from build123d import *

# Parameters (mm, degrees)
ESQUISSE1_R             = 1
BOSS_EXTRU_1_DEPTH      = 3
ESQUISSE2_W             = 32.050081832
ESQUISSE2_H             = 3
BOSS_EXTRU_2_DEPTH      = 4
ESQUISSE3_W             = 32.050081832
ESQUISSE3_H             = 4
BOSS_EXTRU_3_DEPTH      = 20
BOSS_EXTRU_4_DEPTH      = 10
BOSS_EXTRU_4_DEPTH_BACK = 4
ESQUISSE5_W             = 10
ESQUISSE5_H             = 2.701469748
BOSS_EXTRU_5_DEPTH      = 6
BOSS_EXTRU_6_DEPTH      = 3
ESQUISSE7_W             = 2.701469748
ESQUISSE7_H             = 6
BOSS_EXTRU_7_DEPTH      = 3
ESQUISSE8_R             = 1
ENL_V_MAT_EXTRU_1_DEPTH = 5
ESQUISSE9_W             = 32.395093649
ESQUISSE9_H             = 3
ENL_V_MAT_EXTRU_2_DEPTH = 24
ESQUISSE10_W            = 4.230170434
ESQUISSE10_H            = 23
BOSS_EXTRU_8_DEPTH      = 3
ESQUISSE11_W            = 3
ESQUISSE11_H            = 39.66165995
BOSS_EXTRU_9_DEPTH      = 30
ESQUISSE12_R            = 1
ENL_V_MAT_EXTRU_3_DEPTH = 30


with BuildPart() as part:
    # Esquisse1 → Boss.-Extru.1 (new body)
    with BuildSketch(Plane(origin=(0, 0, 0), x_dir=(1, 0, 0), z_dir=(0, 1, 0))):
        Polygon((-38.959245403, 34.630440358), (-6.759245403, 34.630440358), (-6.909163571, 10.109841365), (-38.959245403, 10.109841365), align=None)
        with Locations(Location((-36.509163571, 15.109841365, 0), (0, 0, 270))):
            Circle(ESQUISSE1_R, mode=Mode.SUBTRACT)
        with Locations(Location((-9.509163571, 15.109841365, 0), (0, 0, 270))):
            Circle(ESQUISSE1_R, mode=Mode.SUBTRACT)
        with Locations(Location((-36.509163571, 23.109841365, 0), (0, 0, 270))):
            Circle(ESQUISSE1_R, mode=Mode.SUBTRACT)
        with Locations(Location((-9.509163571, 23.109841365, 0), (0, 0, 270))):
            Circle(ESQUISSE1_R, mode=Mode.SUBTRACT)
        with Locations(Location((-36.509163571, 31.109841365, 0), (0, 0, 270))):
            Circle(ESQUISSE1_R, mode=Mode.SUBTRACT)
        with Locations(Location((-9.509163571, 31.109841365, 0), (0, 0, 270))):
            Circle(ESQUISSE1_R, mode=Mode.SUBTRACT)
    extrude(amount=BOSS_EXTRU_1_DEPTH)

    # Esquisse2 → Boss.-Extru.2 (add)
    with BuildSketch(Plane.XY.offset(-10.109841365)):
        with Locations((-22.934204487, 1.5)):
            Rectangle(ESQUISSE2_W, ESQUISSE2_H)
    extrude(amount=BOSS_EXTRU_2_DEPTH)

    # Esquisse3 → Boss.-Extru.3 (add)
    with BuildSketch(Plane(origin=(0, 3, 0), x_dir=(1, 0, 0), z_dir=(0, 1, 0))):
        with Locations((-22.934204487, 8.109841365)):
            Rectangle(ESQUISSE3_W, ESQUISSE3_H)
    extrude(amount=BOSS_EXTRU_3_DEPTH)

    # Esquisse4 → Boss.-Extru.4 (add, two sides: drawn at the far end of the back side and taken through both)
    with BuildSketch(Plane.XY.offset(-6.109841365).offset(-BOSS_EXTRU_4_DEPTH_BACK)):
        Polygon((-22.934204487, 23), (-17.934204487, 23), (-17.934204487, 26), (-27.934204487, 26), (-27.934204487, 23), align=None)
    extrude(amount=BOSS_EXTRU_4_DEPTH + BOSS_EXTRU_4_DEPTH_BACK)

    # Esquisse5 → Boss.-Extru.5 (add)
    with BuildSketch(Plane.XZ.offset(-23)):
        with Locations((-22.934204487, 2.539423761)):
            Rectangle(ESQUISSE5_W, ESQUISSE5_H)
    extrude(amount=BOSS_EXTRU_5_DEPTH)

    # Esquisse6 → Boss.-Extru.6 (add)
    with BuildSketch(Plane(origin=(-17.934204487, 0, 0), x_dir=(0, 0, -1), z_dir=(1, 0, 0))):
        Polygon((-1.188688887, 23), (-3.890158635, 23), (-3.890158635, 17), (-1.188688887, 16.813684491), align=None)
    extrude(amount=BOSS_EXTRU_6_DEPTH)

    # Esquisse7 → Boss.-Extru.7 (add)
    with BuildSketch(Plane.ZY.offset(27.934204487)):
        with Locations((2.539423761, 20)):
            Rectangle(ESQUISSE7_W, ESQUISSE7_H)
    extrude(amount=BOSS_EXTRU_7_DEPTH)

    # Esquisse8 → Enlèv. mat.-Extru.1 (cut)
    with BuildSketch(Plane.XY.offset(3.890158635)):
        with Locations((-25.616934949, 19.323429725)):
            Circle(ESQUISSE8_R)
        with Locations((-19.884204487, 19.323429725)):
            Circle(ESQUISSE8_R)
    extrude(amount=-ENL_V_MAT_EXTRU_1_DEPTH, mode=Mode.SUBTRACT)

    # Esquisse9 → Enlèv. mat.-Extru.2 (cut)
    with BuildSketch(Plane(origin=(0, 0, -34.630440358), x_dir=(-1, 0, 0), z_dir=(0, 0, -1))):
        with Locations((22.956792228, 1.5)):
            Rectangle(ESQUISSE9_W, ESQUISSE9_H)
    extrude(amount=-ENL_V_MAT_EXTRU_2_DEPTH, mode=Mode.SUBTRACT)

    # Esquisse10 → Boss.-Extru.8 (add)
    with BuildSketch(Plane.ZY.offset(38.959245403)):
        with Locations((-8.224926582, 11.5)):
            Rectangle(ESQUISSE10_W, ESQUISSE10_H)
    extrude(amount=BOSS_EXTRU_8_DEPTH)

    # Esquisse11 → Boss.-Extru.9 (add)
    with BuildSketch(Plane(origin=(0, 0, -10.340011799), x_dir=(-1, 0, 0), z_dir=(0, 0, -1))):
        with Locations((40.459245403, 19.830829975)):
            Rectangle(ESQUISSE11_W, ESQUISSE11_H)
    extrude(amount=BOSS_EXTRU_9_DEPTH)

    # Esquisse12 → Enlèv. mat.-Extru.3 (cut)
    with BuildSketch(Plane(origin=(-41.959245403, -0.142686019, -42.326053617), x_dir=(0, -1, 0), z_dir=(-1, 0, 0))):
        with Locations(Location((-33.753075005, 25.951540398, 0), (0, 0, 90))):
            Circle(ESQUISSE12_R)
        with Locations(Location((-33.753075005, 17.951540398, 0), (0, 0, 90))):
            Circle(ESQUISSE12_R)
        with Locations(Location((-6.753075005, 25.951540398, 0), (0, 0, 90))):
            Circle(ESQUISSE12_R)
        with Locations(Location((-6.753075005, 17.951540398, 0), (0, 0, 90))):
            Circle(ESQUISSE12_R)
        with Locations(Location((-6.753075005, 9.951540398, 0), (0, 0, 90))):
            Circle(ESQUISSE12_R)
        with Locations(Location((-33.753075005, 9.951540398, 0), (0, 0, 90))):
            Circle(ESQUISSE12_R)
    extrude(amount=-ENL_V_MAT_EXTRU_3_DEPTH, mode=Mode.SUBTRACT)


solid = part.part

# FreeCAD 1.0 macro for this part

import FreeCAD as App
import Part
import Sketcher

V = App.Vector
Q = App.Units.Quantity

doc = App.newDocument("Part")
body = doc.addObject("PartDesign::Body", "Body")

# Sketch on XZ plane
sketch1 = body.newObject("Sketcher::SketchObject", "Sketch")
sketch1.AttachmentSupport = (doc.getObject("XZ_Plane"), [""])
sketch1.MapMode = "FlatFace"
sketch1.addGeometry(Part.LineSegment(V(-6.8, -34.6, 0), V(-39, -34.6, 0)), False)
sketch1.addGeometry(Part.LineSegment(V(-39, -34.6, 0), V(-39, -10.1, 0)), False)
sketch1.addGeometry(Part.LineSegment(V(-39, -10.1, 0), V(-6.9, -10.1, 0)), False)
sketch1.addGeometry(Part.LineSegment(V(-6.9, -10.1, 0), V(-6.8, -34.6, 0)), False)
sketch1.addGeometry(Part.Circle(V(-9.5, -15.1, 0), V(0, 0, 1), 1), False)
sketch1.addGeometry(Part.Circle(V(-36.5, -15.1, 0), V(0, 0, 1), 1), False)
sketch1.addGeometry(Part.Circle(V(-9.5, -23.1, 0), V(0, 0, 1), 1), False)
sketch1.addGeometry(Part.Circle(V(-9.5, -31.1, 0), V(0, 0, 1), 1), False)
sketch1.addGeometry(Part.Circle(V(-36.5, -23.1, 0), V(0, 0, 1), 1), False)
sketch1.addGeometry(Part.Circle(V(-36.5, -31.1, 0), V(0, 0, 1), 1), False)
sketch1.addConstraint(Sketcher.Constraint("Coincident", 0, 2, 1, 1))
sketch1.addConstraint(Sketcher.Constraint("Coincident", 1, 2, 2, 1))
sketch1.addConstraint(Sketcher.Constraint("Coincident", 2, 2, 3, 1))
sketch1.addConstraint(Sketcher.Constraint("Coincident", 3, 2, 0, 1))
sketch1.addConstraint(Sketcher.Constraint("Horizontal", 0))
sketch1.addConstraint(Sketcher.Constraint("Vertical", 1))
sketch1.addConstraint(Sketcher.Constraint("Horizontal", 2))
sketch1.addConstraint(Sketcher.Constraint("Equal", 4, 5))
sketch1.addConstraint(Sketcher.Constraint("Equal", 5, 6))
sketch1.addConstraint(Sketcher.Constraint("Equal", 6, 7))
sketch1.addConstraint(Sketcher.Constraint("Equal", 7, 8))
sketch1.addConstraint(Sketcher.Constraint("Equal", 8, 9))
sketch1.addConstraint(Sketcher.Constraint("Horizontal", 4, 3, 5, 3))
sketch1.addConstraint(Sketcher.Constraint("Horizontal", 6, 3, 8, 3))
sketch1.addConstraint(Sketcher.Constraint("Horizontal", 7, 3, 9, 3))
sketch1.addConstraint(Sketcher.Constraint("Vertical", 4, 3, 6, 3))
sketch1.addConstraint(Sketcher.Constraint("Vertical", 6, 3, 7, 3))
sketch1.addConstraint(Sketcher.Constraint("Vertical", 5, 3, 8, 3))
sketch1.addConstraint(Sketcher.Constraint("Vertical", 8, 3, 9, 3))
sketch1.addConstraint(Sketcher.Constraint("Diameter", 4, Q("2 mm")))
sketch1.addConstraint(Sketcher.Constraint("DistanceX", 0, 2, 0, 1, Q("32.2 mm")))
sketch1.addConstraint(Sketcher.Constraint("DistanceX", 5, 3, 4, 3, Q("27 mm")))
sketch1.addConstraint(Sketcher.Constraint("DistanceY", 6, 3, 4, 3, Q("8 mm")))
sketch1.addConstraint(Sketcher.Constraint("DistanceY", 7, 3, 6, 3, Q("8 mm")))
sketch1.addConstraint(Sketcher.Constraint("DistanceY", 5, 3, 1, 2, Q("5 mm")))
sketch1.addConstraint(Sketcher.Constraint("DistanceX", 4, 3, 2, 2, Q("2.6 mm")))
sketch1.addConstraint(Sketcher.Constraint("DistanceY", 1, 1, 1, 2, Q("24.520599 mm")))
sketch1.addConstraint(Sketcher.Constraint("DistanceX", 2, 1, 2, 2, Q("32.050082 mm")))
sketch1.addConstraint(Sketcher.Constraint("DistanceY", 4, 3, -1, 1, Q("15.109841 mm")))
sketch1.addConstraint(Sketcher.Constraint("DistanceX", 4, 3, -1, 1, Q("9.509164 mm")))
pad1 = body.newObject("PartDesign::Pad", "Pad")
pad1.Profile = sketch1
pad1.Length = 3
pad1.Reversed = True

# Sketch on XY plane
sketch2 = body.newObject("Sketcher::SketchObject", "Sketch001")
sketch2.AttachmentSupport = (doc.getObject("XY_Plane"), [""])
sketch2.MapMode = "FlatFace"
sketch2.AttachmentOffset = App.Placement(V(0, 0, -10.109841), App.Rotation())
sketch2.addGeometry(Part.LineSegment(V(-39, 3, 0), V(-39, 0, 0)), False)
sketch2.addGeometry(Part.LineSegment(V(-39, 0, 0), V(-6.9, 0, 0)), False)
sketch2.addGeometry(Part.LineSegment(V(-6.9, 0, 0), V(-6.9, 3, 0)), False)
sketch2.addGeometry(Part.LineSegment(V(-6.9, 3, 0), V(-39, 3, 0)), False)
sketch2.addConstraint(Sketcher.Constraint("Coincident", 0, 2, 1, 1))
sketch2.addConstraint(Sketcher.Constraint("Coincident", 1, 2, 2, 1))
sketch2.addConstraint(Sketcher.Constraint("Coincident", 2, 2, 3, 1))
sketch2.addConstraint(Sketcher.Constraint("Coincident", 3, 2, 0, 1))
sketch2.addConstraint(Sketcher.Constraint("Vertical", 0))
sketch2.addConstraint(Sketcher.Constraint("Horizontal", 1))
sketch2.addConstraint(Sketcher.Constraint("Vertical", 2))
sketch2.addConstraint(Sketcher.Constraint("Horizontal", 3))
sketch2.addConstraint(Sketcher.Constraint("PointOnObject", 0, 2, -1))
sketch2.addConstraint(Sketcher.Constraint("DistanceY", 0, 2, 0, 1, Q("3 mm")))
sketch2.addConstraint(Sketcher.Constraint("DistanceX", 1, 1, 1, 2, Q("32.050082 mm")))
sketch2.addConstraint(Sketcher.Constraint("DistanceX", 0, 2, -1, 1, Q("38.959245 mm")))
pad2 = body.newObject("PartDesign::Pad", "Pad001")
pad2.Profile = sketch2
pad2.Length = 4

# Sketch on XZ plane
sketch3 = body.newObject("Sketcher::SketchObject", "Sketch002")
sketch3.AttachmentSupport = (doc.getObject("XZ_Plane"), [""])
sketch3.MapMode = "FlatFace"
sketch3.AttachmentOffset = App.Placement(V(0, 0, -3), App.Rotation())
sketch3.addGeometry(Part.LineSegment(V(-39, -10.1, 0), V(-39, -6.1, 0)), False)
sketch3.addGeometry(Part.LineSegment(V(-39, -6.1, 0), V(-6.9, -6.1, 0)), False)
sketch3.addGeometry(Part.LineSegment(V(-6.9, -6.1, 0), V(-6.9, -10.1, 0)), False)
sketch3.addGeometry(Part.LineSegment(V(-6.9, -10.1, 0), V(-39, -10.1, 0)), False)
sketch3.addConstraint(Sketcher.Constraint("Coincident", 0, 2, 1, 1))
sketch3.addConstraint(Sketcher.Constraint("Coincident", 1, 2, 2, 1))
sketch3.addConstraint(Sketcher.Constraint("Coincident", 2, 2, 3, 1))
sketch3.addConstraint(Sketcher.Constraint("Coincident", 3, 2, 0, 1))
sketch3.addConstraint(Sketcher.Constraint("Vertical", 0))
sketch3.addConstraint(Sketcher.Constraint("Horizontal", 1))
sketch3.addConstraint(Sketcher.Constraint("Vertical", 2))
sketch3.addConstraint(Sketcher.Constraint("Horizontal", 3))
sketch3.addConstraint(Sketcher.Constraint("DistanceY", 0, 1, 0, 2, Q("4 mm")))
sketch3.addConstraint(Sketcher.Constraint("DistanceX", 1, 1, 1, 2, Q("32.050082 mm")))
sketch3.addConstraint(Sketcher.Constraint("DistanceY", 0, 2, -1, 1, Q("6.109841 mm")))
sketch3.addConstraint(Sketcher.Constraint("DistanceX", 0, 2, -1, 1, Q("38.959245 mm")))
pad3 = body.newObject("PartDesign::Pad", "Pad002")
pad3.Profile = sketch3
pad3.Length = 20
pad3.Reversed = True

# Sketch on XY plane
sketch4 = body.newObject("Sketcher::SketchObject", "Sketch003")
sketch4.AttachmentSupport = (doc.getObject("XY_Plane"), [""])
sketch4.MapMode = "FlatFace"
sketch4.AttachmentOffset = App.Placement(V(0, 0, -6.109841), App.Rotation())
sketch4.addGeometry(Part.LineSegment(V(-17.9, 23, 0), V(-17.9, 26, 0)), False)
sketch4.addGeometry(Part.LineSegment(V(-17.9, 26, 0), V(-27.9, 26, 0)), False)
sketch4.addGeometry(Part.LineSegment(V(-27.9, 26, 0), V(-27.9, 23, 0)), False)
sketch4.addGeometry(Part.LineSegment(V(-27.9, 23, 0), V(-17.9, 23, 0)), False)
sketch4.addConstraint(Sketcher.Constraint("Coincident", 0, 2, 1, 1))
sketch4.addConstraint(Sketcher.Constraint("Coincident", 1, 2, 2, 1))
sketch4.addConstraint(Sketcher.Constraint("Coincident", 2, 2, 3, 1))
sketch4.addConstraint(Sketcher.Constraint("Coincident", 3, 2, 0, 1))
sketch4.addConstraint(Sketcher.Constraint("Vertical", 0))
sketch4.addConstraint(Sketcher.Constraint("Horizontal", 1))
sketch4.addConstraint(Sketcher.Constraint("Vertical", 2))
sketch4.addConstraint(Sketcher.Constraint("Horizontal", 3))
sketch4.addConstraint(Sketcher.Constraint("DistanceX", 1, 2, 1, 1, Q("10 mm")))
sketch4.addConstraint(Sketcher.Constraint("DistanceY", 0, 1, 0, 2, Q("3 mm")))
sketch4.addConstraint(Sketcher.Constraint("DistanceY", -1, 1, 0, 2, Q("26 mm")))
sketch4.addConstraint(Sketcher.Constraint("DistanceX", 0, 2, -1, 1, Q("17.934204 mm")))
pad4 = body.newObject("PartDesign::Pad", "Pad003")
pad4.Profile = sketch4
pad4.Type = "TwoLengths"
pad4.Length = 10
pad4.Length2 = 4

# Sketch on XZ plane
sketch5 = body.newObject("Sketcher::SketchObject", "Sketch004")
sketch5.AttachmentSupport = (doc.getObject("XZ_Plane"), [""])
sketch5.MapMode = "FlatFace"
sketch5.AttachmentOffset = App.Placement(V(0, 0, -23), App.Rotation())
sketch5.addGeometry(Part.LineSegment(V(-27.9, 3.9, 0), V(-27.9, 1.2, 0)), False)
sketch5.addGeometry(Part.LineSegment(V(-27.9, 1.2, 0), V(-17.9, 1.2, 0)), False)
sketch5.addGeometry(Part.LineSegment(V(-17.9, 1.2, 0), V(-17.9, 3.9, 0)), False)
sketch5.addGeometry(Part.LineSegment(V(-17.9, 3.9, 0), V(-27.9, 3.9, 0)), False)
sketch5.addConstraint(Sketcher.Constraint("Coincident", 0, 2, 1, 1))
sketch5.addConstraint(Sketcher.Constraint("Coincident", 1, 2, 2, 1))
sketch5.addConstraint(Sketcher.Constraint("Coincident", 2, 2, 3, 1))
sketch5.addConstraint(Sketcher.Constraint("Coincident", 3, 2, 0, 1))
sketch5.addConstraint(Sketcher.Constraint("Vertical", 0))
sketch5.addConstraint(Sketcher.Constraint("Horizontal", 1))
sketch5.addConstraint(Sketcher.Constraint("Vertical", 2))
sketch5.addConstraint(Sketcher.Constraint("Horizontal", 3))
sketch5.addConstraint(Sketcher.Constraint("DistanceX", 1, 1, 1, 2, Q("10 mm")))
sketch5.addConstraint(Sketcher.Constraint("DistanceY", 0, 2, 0, 1, Q("2.70147 mm")))
sketch5.addConstraint(Sketcher.Constraint("DistanceY", -1, 1, 0, 2, Q("1.188689 mm")))
sketch5.addConstraint(Sketcher.Constraint("DistanceX", 0, 2, -1, 1, Q("27.934204 mm")))
pad5 = body.newObject("PartDesign::Pad", "Pad004")
pad5.Profile = sketch5
pad5.Length = 6

# Sketch on YZ plane
sketch6 = body.newObject("Sketcher::SketchObject", "Sketch005")
sketch6.AttachmentSupport = (doc.getObject("YZ_Plane"), [""])
sketch6.MapMode = "FlatFace"
sketch6.AttachmentOffset = App.Placement(V(0, 0, -17.934204), App.Rotation())
sketch6.addGeometry(Part.LineSegment(V(23, 1.2, 0), V(23, 3.9, 0)), False)
sketch6.addGeometry(Part.LineSegment(V(23, 3.9, 0), V(17, 3.9, 0)), False)
sketch6.addGeometry(Part.LineSegment(V(17, 3.9, 0), V(16.8, 1.2, 0)), False)
sketch6.addGeometry(Part.LineSegment(V(16.8, 1.2, 0), V(23, 1.2, 0)), False)
sketch6.addConstraint(Sketcher.Constraint("Coincident", 0, 2, 1, 1))
sketch6.addConstraint(Sketcher.Constraint("Coincident", 1, 2, 2, 1))
sketch6.addConstraint(Sketcher.Constraint("Coincident", 2, 2, 3, 1))
sketch6.addConstraint(Sketcher.Constraint("Coincident", 3, 2, 0, 1))
sketch6.addConstraint(Sketcher.Constraint("Vertical", 0))
sketch6.addConstraint(Sketcher.Constraint("Horizontal", 1))
sketch6.addConstraint(Sketcher.Constraint("Horizontal", 3))
sketch6.addConstraint(Sketcher.Constraint("DistanceX", 1, 2, 1, 1, Q("6 mm")))
sketch6.addConstraint(Sketcher.Constraint("DistanceX", -1, 1, 0, 2, Q("23 mm")))
sketch6.addConstraint(Sketcher.Constraint("DistanceY", 0, 1, 0, 2, Q("2.70147 mm")))
sketch6.addConstraint(Sketcher.Constraint("DistanceX", 3, 1, 3, 2, Q("6.186316 mm")))
sketch6.addConstraint(Sketcher.Constraint("DistanceY", -1, 1, 0, 2, Q("3.890159 mm")))
pad6 = body.newObject("PartDesign::Pad", "Pad005")
pad6.Profile = sketch6
pad6.Length = 3

# Sketch on YZ plane
sketch7 = body.newObject("Sketcher::SketchObject", "Sketch006")
sketch7.AttachmentSupport = (doc.getObject("YZ_Plane"), [""])
sketch7.MapMode = "FlatFace"
sketch7.AttachmentOffset = App.Placement(V(0, 0, -27.934204), App.Rotation())
sketch7.addGeometry(Part.LineSegment(V(23, 1.2, 0), V(17, 1.2, 0)), False)
sketch7.addGeometry(Part.LineSegment(V(17, 1.2, 0), V(17, 3.9, 0)), False)
sketch7.addGeometry(Part.LineSegment(V(17, 3.9, 0), V(23, 3.9, 0)), False)
sketch7.addGeometry(Part.LineSegment(V(23, 3.9, 0), V(23, 1.2, 0)), False)
sketch7.addConstraint(Sketcher.Constraint("Coincident", 0, 2, 1, 1))
sketch7.addConstraint(Sketcher.Constraint("Coincident", 1, 2, 2, 1))
sketch7.addConstraint(Sketcher.Constraint("Coincident", 2, 2, 3, 1))
sketch7.addConstraint(Sketcher.Constraint("Coincident", 3, 2, 0, 1))
sketch7.addConstraint(Sketcher.Constraint("Horizontal", 0))
sketch7.addConstraint(Sketcher.Constraint("Vertical", 1))
sketch7.addConstraint(Sketcher.Constraint("Horizontal", 2))
sketch7.addConstraint(Sketcher.Constraint("Vertical", 3))
sketch7.addConstraint(Sketcher.Constraint("DistanceX", 0, 2, 0, 1, Q("6 mm")))
sketch7.addConstraint(Sketcher.Constraint("DistanceX", -1, 1, 0, 2, Q("17 mm")))
sketch7.addConstraint(Sketcher.Constraint("DistanceY", 1, 1, 1, 2, Q("2.70147 mm")))
sketch7.addConstraint(Sketcher.Constraint("DistanceY", -1, 1, 0, 2, Q("1.188689 mm")))
pad7 = body.newObject("PartDesign::Pad", "Pad006")
pad7.Profile = sketch7
pad7.Length = 3
pad7.Reversed = True

# Sketch on XY plane
sketch8 = body.newObject("Sketcher::SketchObject", "Sketch007")
sketch8.AttachmentSupport = (doc.getObject("XY_Plane"), [""])
sketch8.MapMode = "FlatFace"
sketch8.AttachmentOffset = App.Placement(V(0, 0, 3.890159), App.Rotation())
sketch8.addGeometry(Part.Circle(V(-25.6, 19.3, 0), V(0, 0, 1), 1), False)
sketch8.addGeometry(Part.Circle(V(-19.9, 19.3, 0), V(0, 0, 1), 1), False)
sketch8.addConstraint(Sketcher.Constraint("Equal", 0, 1))
sketch8.addConstraint(Sketcher.Constraint("Horizontal", 0, 3, 1, 3))
sketch8.addConstraint(Sketcher.Constraint("Diameter", 0, Q("2 mm")))
sketch8.addConstraint(Sketcher.Constraint("DistanceY", -1, 1, 0, 3, Q("19.32343 mm")))
sketch8.addConstraint(Sketcher.Constraint("DistanceX", 0, 3, 1, 3, Q("5.73273 mm")))
sketch8.addConstraint(Sketcher.Constraint("DistanceX", 0, 3, -1, 1, Q("25.616935 mm")))
pocket1 = body.newObject("PartDesign::Pocket", "Pocket")
pocket1.Profile = sketch8
pocket1.Length = 5

# Sketch on XY plane
sketch9 = body.newObject("Sketcher::SketchObject", "Sketch008")
sketch9.AttachmentSupport = (doc.getObject("XY_Plane"), [""])
sketch9.MapMode = "FlatFace"
sketch9.AttachmentOffset = App.Placement(V(0, 0, -34.63044), App.Rotation())
sketch9.addGeometry(Part.LineSegment(V(-6.8, 3, 0), V(-6.8, 0, 0)), False)
sketch9.addGeometry(Part.LineSegment(V(-6.8, 0, 0), V(-39.2, 0, 0)), False)
sketch9.addGeometry(Part.LineSegment(V(-39.2, 0, 0), V(-39.2, 3, 0)), False)
sketch9.addGeometry(Part.LineSegment(V(-39.2, 3, 0), V(-6.8, 3, 0)), False)
sketch9.addConstraint(Sketcher.Constraint("Coincident", 0, 2, 1, 1))
sketch9.addConstraint(Sketcher.Constraint("Coincident", 1, 2, 2, 1))
sketch9.addConstraint(Sketcher.Constraint("Coincident", 2, 2, 3, 1))
sketch9.addConstraint(Sketcher.Constraint("Coincident", 3, 2, 0, 1))
sketch9.addConstraint(Sketcher.Constraint("Vertical", 0))
sketch9.addConstraint(Sketcher.Constraint("Horizontal", 1))
sketch9.addConstraint(Sketcher.Constraint("Vertical", 2))
sketch9.addConstraint(Sketcher.Constraint("Horizontal", 3))
sketch9.addConstraint(Sketcher.Constraint("PointOnObject", 0, 2, -1))
sketch9.addConstraint(Sketcher.Constraint("DistanceY", 0, 2, 0, 1, Q("3 mm")))
sketch9.addConstraint(Sketcher.Constraint("DistanceX", 1, 2, 1, 1, Q("32.395094 mm")))
sketch9.addConstraint(Sketcher.Constraint("DistanceX", 1, 2, -1, 1, Q("39.154339 mm")))
pocket2 = body.newObject("PartDesign::Pocket", "Pocket001")
pocket2.Profile = sketch9
pocket2.Length = 24
pocket2.Reversed = True

# Sketch on YZ plane
sketch10 = body.newObject("Sketcher::SketchObject", "Sketch009")
sketch10.AttachmentSupport = (doc.getObject("YZ_Plane"), [""])
sketch10.MapMode = "FlatFace"
sketch10.AttachmentOffset = App.Placement(V(0, 0, -38.959245), App.Rotation())
sketch10.addGeometry(Part.LineSegment(V(23, -10.3, 0), V(0, -10.3, 0)), False)
sketch10.addGeometry(Part.LineSegment(V(0, -10.3, 0), V(0, -6.1, 0)), False)
sketch10.addGeometry(Part.LineSegment(V(0, -6.1, 0), V(23, -6.1, 0)), False)
sketch10.addGeometry(Part.LineSegment(V(23, -6.1, 0), V(23, -10.3, 0)), False)
sketch10.addConstraint(Sketcher.Constraint("Coincident", 0, 2, 1, 1))
sketch10.addConstraint(Sketcher.Constraint("Coincident", 1, 2, 2, 1))
sketch10.addConstraint(Sketcher.Constraint("Coincident", 2, 2, 3, 1))
sketch10.addConstraint(Sketcher.Constraint("Coincident", 3, 2, 0, 1))
sketch10.addConstraint(Sketcher.Constraint("Horizontal", 0))
sketch10.addConstraint(Sketcher.Constraint("Vertical", 1))
sketch10.addConstraint(Sketcher.Constraint("Horizontal", 2))
sketch10.addConstraint(Sketcher.Constraint("Vertical", 3))
sketch10.addConstraint(Sketcher.Constraint("PointOnObject", 0, 2, -2))
sketch10.addConstraint(Sketcher.Constraint("DistanceX", 0, 2, 0, 1, Q("23 mm")))
sketch10.addConstraint(Sketcher.Constraint("DistanceY", 1, 1, 1, 2, Q("4.23017 mm")))
sketch10.addConstraint(Sketcher.Constraint("DistanceY", 0, 2, -1, 1, Q("10.340012 mm")))
pad8 = body.newObject("PartDesign::Pad", "Pad007")
pad8.Profile = sketch10
pad8.Length = 3
pad8.Reversed = True

# Sketch on XY plane
sketch11 = body.newObject("Sketcher::SketchObject", "Sketch010")
sketch11.AttachmentSupport = (doc.getObject("XY_Plane"), [""])
sketch11.MapMode = "FlatFace"
sketch11.AttachmentOffset = App.Placement(V(0, 0, -10.340012), App.Rotation())
sketch11.addGeometry(Part.LineSegment(V(-39, 39.7, 0), V(-39, 0, 0)), False)
sketch11.addGeometry(Part.LineSegment(V(-39, 0, 0), V(-42, 0, 0)), False)
sketch11.addGeometry(Part.LineSegment(V(-42, 0, 0), V(-42, 39.7, 0)), False)
sketch11.addGeometry(Part.LineSegment(V(-42, 39.7, 0), V(-39, 39.7, 0)), False)
sketch11.addConstraint(Sketcher.Constraint("Coincident", 0, 2, 1, 1))
sketch11.addConstraint(Sketcher.Constraint("Coincident", 1, 2, 2, 1))
sketch11.addConstraint(Sketcher.Constraint("Coincident", 2, 2, 3, 1))
sketch11.addConstraint(Sketcher.Constraint("Coincident", 3, 2, 0, 1))
sketch11.addConstraint(Sketcher.Constraint("Vertical", 0))
sketch11.addConstraint(Sketcher.Constraint("Horizontal", 1))
sketch11.addConstraint(Sketcher.Constraint("Vertical", 2))
sketch11.addConstraint(Sketcher.Constraint("Horizontal", 3))
sketch11.addConstraint(Sketcher.Constraint("PointOnObject", 0, 2, -1))
sketch11.addConstraint(Sketcher.Constraint("DistanceX", 1, 2, 1, 1, Q("3 mm")))
sketch11.addConstraint(Sketcher.Constraint("DistanceY", 0, 2, 0, 1, Q("39.66166 mm")))
sketch11.addConstraint(Sketcher.Constraint("DistanceX", 0, 2, -1, 1, Q("38.959245 mm")))
pad9 = body.newObject("PartDesign::Pad", "Pad008")
pad9.Profile = sketch11
pad9.Length = 30
pad9.Reversed = True

# Sketch on YZ plane
sketch12 = body.newObject("Sketcher::SketchObject", "Sketch011")
sketch12.AttachmentSupport = (doc.getObject("YZ_Plane"), [""])
sketch12.MapMode = "FlatFace"
sketch12.AttachmentOffset = App.Placement(V(0, 0, -41.959245), App.Rotation())
sketch12.addGeometry(Part.Circle(V(33.6, -16.4, 0), V(0, 0, 1), 1), False)
sketch12.addGeometry(Part.Circle(V(33.6, -24.4, 0), V(0, 0, 1), 1), False)
sketch12.addGeometry(Part.Circle(V(6.6, -16.4, 0), V(0, 0, 1), 1), False)
sketch12.addGeometry(Part.Circle(V(6.6, -24.4, 0), V(0, 0, 1), 1), False)
sketch12.addGeometry(Part.Circle(V(6.6, -32.4, 0), V(0, 0, 1), 1), False)
sketch12.addGeometry(Part.Circle(V(33.6, -32.4, 0), V(0, 0, 1), 1), False)
sketch12.addConstraint(Sketcher.Constraint("Equal", 0, 1))
sketch12.addConstraint(Sketcher.Constraint("Equal", 1, 2))
sketch12.addConstraint(Sketcher.Constraint("Equal", 2, 3))
sketch12.addConstraint(Sketcher.Constraint("Equal", 3, 4))
sketch12.addConstraint(Sketcher.Constraint("Equal", 4, 5))
sketch12.addConstraint(Sketcher.Constraint("Horizontal", 0, 3, 2, 3))
sketch12.addConstraint(Sketcher.Constraint("Horizontal", 1, 3, 3, 3))
sketch12.addConstraint(Sketcher.Constraint("Horizontal", 4, 3, 5, 3))
sketch12.addConstraint(Sketcher.Constraint("Vertical", 0, 3, 1, 3))
sketch12.addConstraint(Sketcher.Constraint("Vertical", 2, 3, 3, 3))
sketch12.addConstraint(Sketcher.Constraint("Vertical", 3, 3, 4, 3))
sketch12.addConstraint(Sketcher.Constraint("Vertical", 1, 3, 5, 3))
sketch12.addConstraint(Sketcher.Constraint("Diameter", 0, Q("2 mm")))
sketch12.addConstraint(Sketcher.Constraint("DistanceY", 1, 3, 0, 3, Q("8 mm")))
sketch12.addConstraint(Sketcher.Constraint("DistanceX", 2, 3, 0, 3, Q("27 mm")))
sketch12.addConstraint(Sketcher.Constraint("DistanceY", 4, 3, 3, 3, Q("8 mm")))
sketch12.addConstraint(Sketcher.Constraint("DistanceX", -1, 1, 0, 3, Q("33.610389 mm")))
sketch12.addConstraint(Sketcher.Constraint("DistanceY", 0, 3, -1, 1, Q("16.374513 mm")))
pocket3 = body.newObject("PartDesign::Pocket", "Pocket002")
pocket3.Profile = sketch12
pocket3.Length = 30
pocket3.Reversed = True

doc.recompute()
